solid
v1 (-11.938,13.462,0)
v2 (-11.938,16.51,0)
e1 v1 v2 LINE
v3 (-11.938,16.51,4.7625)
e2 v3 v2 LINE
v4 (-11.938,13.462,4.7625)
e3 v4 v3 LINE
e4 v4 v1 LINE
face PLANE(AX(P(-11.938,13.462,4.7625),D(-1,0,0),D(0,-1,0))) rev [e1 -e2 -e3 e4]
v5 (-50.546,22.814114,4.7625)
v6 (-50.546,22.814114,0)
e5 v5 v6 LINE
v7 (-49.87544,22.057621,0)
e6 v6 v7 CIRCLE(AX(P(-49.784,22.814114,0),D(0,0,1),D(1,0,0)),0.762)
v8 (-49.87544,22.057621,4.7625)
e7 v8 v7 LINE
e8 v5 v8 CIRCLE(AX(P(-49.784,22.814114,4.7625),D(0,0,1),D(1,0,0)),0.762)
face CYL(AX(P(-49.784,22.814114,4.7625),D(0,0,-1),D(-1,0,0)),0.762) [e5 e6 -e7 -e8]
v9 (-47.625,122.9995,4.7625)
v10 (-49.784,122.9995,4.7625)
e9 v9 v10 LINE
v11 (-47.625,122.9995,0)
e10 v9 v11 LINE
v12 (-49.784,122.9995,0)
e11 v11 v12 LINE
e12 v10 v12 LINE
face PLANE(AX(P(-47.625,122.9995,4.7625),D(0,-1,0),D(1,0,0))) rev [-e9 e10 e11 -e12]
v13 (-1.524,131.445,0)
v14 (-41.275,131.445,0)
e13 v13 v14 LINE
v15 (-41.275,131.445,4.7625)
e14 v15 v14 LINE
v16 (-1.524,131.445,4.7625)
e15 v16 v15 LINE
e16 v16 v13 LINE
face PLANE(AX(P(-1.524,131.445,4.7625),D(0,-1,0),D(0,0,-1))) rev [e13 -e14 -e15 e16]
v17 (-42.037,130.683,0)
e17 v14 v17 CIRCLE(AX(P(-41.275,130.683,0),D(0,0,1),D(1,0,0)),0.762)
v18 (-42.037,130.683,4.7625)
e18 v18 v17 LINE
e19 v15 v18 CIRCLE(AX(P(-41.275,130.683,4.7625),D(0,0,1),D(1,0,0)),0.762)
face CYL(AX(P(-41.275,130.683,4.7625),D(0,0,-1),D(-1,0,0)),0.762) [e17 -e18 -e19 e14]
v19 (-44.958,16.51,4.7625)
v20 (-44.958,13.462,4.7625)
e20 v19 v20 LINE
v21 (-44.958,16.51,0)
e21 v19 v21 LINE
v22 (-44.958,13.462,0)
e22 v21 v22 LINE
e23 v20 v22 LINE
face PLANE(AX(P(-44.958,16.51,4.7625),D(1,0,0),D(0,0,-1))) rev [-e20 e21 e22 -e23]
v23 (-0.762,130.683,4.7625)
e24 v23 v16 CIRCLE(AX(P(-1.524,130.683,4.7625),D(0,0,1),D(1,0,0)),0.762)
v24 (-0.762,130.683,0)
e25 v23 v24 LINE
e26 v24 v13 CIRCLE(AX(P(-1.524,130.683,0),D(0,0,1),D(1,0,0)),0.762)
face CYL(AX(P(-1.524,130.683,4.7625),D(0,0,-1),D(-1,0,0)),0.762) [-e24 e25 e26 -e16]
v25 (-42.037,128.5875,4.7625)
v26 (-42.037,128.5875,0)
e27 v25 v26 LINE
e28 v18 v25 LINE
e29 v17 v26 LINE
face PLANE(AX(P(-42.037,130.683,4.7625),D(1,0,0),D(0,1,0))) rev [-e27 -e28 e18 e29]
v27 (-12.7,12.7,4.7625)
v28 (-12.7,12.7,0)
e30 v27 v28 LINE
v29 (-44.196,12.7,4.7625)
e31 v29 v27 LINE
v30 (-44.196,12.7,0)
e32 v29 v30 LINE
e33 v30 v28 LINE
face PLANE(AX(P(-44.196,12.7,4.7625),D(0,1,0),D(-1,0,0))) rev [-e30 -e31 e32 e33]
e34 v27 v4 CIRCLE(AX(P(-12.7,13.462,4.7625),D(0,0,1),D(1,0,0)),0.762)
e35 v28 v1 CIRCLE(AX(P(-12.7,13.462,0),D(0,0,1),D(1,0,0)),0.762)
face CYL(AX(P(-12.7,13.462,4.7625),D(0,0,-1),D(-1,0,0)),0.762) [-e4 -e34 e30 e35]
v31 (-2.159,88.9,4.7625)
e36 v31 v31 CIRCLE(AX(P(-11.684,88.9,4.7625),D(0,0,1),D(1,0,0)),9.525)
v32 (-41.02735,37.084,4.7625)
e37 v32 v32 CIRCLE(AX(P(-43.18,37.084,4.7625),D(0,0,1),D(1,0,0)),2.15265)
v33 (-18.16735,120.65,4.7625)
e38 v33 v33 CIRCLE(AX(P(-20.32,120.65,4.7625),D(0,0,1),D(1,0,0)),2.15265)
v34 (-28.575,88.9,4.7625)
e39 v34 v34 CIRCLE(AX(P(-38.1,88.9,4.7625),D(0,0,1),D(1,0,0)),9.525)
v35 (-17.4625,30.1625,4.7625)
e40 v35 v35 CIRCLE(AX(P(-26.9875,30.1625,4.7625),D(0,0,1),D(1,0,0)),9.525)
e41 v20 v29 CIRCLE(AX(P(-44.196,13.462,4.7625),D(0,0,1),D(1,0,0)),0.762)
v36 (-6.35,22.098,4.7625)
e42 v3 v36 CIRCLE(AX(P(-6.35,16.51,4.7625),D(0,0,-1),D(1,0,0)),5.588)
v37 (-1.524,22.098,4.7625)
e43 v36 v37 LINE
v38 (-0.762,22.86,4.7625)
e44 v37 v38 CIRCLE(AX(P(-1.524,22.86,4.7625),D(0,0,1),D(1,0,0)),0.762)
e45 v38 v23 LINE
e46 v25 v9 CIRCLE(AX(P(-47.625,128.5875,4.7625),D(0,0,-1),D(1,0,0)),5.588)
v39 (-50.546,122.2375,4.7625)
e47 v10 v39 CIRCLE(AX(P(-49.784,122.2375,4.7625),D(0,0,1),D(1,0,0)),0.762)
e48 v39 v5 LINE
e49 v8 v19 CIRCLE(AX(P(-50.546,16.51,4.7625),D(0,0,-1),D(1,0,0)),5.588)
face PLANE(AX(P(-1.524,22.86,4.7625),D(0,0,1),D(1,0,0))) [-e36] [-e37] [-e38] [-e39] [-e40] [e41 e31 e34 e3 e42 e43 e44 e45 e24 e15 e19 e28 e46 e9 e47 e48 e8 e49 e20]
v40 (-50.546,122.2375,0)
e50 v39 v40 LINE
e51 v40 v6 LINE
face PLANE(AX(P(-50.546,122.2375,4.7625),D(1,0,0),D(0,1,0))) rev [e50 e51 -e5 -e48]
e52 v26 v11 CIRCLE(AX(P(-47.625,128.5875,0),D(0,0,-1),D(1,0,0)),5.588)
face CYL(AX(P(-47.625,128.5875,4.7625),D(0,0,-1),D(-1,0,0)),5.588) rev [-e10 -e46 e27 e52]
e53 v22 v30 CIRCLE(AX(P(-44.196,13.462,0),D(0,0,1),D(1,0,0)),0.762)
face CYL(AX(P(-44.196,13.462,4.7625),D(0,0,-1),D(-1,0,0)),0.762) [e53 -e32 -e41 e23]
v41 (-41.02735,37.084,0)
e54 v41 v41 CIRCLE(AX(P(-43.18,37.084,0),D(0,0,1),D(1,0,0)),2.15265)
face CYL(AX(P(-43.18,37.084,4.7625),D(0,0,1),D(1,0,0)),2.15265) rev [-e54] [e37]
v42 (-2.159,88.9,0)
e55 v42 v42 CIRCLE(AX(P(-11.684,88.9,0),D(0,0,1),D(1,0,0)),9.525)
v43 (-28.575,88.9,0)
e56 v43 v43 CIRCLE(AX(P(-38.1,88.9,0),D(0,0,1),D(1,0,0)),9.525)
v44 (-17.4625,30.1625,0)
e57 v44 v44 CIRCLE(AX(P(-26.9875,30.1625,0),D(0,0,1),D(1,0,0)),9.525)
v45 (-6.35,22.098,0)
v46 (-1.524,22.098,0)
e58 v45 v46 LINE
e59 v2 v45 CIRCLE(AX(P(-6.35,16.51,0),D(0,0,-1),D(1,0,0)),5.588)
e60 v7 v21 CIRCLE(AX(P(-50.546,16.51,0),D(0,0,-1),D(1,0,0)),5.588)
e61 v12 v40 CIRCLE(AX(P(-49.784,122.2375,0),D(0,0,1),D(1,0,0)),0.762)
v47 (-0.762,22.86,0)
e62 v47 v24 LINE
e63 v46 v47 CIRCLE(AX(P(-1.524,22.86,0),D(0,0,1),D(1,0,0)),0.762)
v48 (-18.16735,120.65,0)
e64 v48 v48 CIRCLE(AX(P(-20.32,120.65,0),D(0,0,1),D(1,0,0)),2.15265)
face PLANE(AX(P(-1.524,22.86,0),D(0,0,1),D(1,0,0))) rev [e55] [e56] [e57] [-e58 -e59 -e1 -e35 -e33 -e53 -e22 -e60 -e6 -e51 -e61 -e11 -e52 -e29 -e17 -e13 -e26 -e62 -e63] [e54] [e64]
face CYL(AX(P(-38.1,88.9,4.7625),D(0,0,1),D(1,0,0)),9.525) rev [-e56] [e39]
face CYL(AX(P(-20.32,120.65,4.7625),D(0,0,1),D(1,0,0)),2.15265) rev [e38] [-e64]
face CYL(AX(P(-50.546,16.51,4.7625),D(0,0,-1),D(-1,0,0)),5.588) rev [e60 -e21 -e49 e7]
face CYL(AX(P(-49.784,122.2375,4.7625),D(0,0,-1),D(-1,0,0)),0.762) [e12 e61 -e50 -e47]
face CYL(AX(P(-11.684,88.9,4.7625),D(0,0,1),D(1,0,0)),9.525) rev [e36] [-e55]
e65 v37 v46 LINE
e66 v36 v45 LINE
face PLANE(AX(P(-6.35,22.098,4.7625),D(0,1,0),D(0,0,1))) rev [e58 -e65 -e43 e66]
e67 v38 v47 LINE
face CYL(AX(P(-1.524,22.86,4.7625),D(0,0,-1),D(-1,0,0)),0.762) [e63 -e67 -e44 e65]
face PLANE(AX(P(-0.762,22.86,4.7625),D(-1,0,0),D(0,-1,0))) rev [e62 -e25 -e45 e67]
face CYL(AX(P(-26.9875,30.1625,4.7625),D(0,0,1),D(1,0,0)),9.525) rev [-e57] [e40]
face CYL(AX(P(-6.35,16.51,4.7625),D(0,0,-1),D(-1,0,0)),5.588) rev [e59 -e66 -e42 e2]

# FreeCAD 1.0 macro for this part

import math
import FreeCAD as App
import Part
import Sketcher
Q = App.Units.Quantity

doc = App.newDocument("Part")
body = doc.addObject("PartDesign::Body", "Body")

sketch1 = body.newObject("Sketcher::SketchObject", "Sketch")
sketch1.AttachmentSupport = (doc.getObject("XY_Plane"), [""])
sketch1.MapMode = "FlatFace"
sketch1.addGeometry([
    Part.LineSegment(App.Vector(-0.8, 22.9, 0), App.Vector(-0.8, 130.7, 0)),
    Part.ArcOfCircle(Part.Circle(App.Vector(-1.5, 130.7, 0), App.Vector(0, 0, 1), 0.8), math.radians(0), math.radians(90)),
    Part.LineSegment(App.Vector(-1.5, 131.4, 0), App.Vector(-41.3, 131.4, 0)),
    Part.ArcOfCircle(Part.Circle(App.Vector(-41.3, 130.7, 0), App.Vector(0, 0, 1), 0.8), math.radians(90), math.radians(180)),
    Part.LineSegment(App.Vector(-42, 130.7, 0), App.Vector(-42, 128.6, 0)),
    Part.ArcOfCircle(Part.Circle(App.Vector(-47.6, 128.6, 0), App.Vector(0, 0, 1), 5.6), math.radians(-90), math.radians(0)),
    Part.LineSegment(App.Vector(-47.6, 123, 0), App.Vector(-49.8, 123, 0)),
    Part.ArcOfCircle(Part.Circle(App.Vector(-49.8, 122.2, 0), App.Vector(0, 0, 1), 0.8), math.radians(90), math.radians(180)),
    Part.LineSegment(App.Vector(-50.5, 122.2, 0), App.Vector(-50.5, 22.8, 0)),
    Part.ArcOfCircle(Part.Circle(App.Vector(-49.8, 22.8, 0), App.Vector(0, 0, 1), 0.8), math.radians(180), math.radians(263)),
    Part.ArcOfCircle(Part.Circle(App.Vector(-50.5, 16.5, 0), App.Vector(0, 0, 1), 5.6), math.radians(0), math.radians(83)),
    Part.LineSegment(App.Vector(-45, 16.5, 0), App.Vector(-45, 13.5, 0)),
    Part.ArcOfCircle(Part.Circle(App.Vector(-44.2, 13.5, 0), App.Vector(0, 0, 1), 0.8), math.radians(-180), math.radians(-90)),
    Part.LineSegment(App.Vector(-44.2, 12.7, 0), App.Vector(-12.7, 12.7, 0)),
    Part.ArcOfCircle(Part.Circle(App.Vector(-12.7, 13.5, 0), App.Vector(0, 0, 1), 0.8), math.radians(-90), math.radians(0)),
    Part.LineSegment(App.Vector(-11.9, 13.5, 0), App.Vector(-11.9, 16.5, 0)),
    Part.ArcOfCircle(Part.Circle(App.Vector(-6.3, 16.5, 0), App.Vector(0, 0, 1), 5.6), math.radians(90), math.radians(180)),
    Part.LineSegment(App.Vector(-6.3, 22.1, 0), App.Vector(-1.5, 22.1, 0)),
    Part.ArcOfCircle(Part.Circle(App.Vector(-1.5, 22.9, 0), App.Vector(0, 0, 1), 0.8), math.radians(-90), math.radians(0)),
], False)
sketch1.addConstraint([
    Sketcher.Constraint("Tangent", 0, 2, 1, 1),
    Sketcher.Constraint("Tangent", 1, 2, 2, 1),
    Sketcher.Constraint("Tangent", 2, 2, 3, 1),
    Sketcher.Constraint("Tangent", 3, 2, 4, 1),
    Sketcher.Constraint("Tangent", 4, 2, 5, 2),
    Sketcher.Constraint("Tangent", 5, 1, 6, 1),
    Sketcher.Constraint("Tangent", 6, 2, 7, 1),
    Sketcher.Constraint("Tangent", 7, 2, 8, 1),
    Sketcher.Constraint("Tangent", 8, 2, 9, 1),
    Sketcher.Constraint("Tangent", 9, 2, 10, 2),
    Sketcher.Constraint("Tangent", 10, 1, 11, 1),
    Sketcher.Constraint("Tangent", 11, 2, 12, 1),
    Sketcher.Constraint("Tangent", 12, 2, 13, 1),
    Sketcher.Constraint("Tangent", 13, 2, 14, 1),
    Sketcher.Constraint("Tangent", 14, 2, 15, 1),
    Sketcher.Constraint("Tangent", 15, 2, 16, 2),
    Sketcher.Constraint("Tangent", 16, 1, 17, 1),
    Sketcher.Constraint("Tangent", 17, 2, 18, 1),
    Sketcher.Constraint("Tangent", 18, 2, 0, 1),
    Sketcher.Constraint("Vertical", 0),
    Sketcher.Constraint("Horizontal", 2),
    Sketcher.Constraint("Vertical", 4),
    Sketcher.Constraint("Horizontal", 6),
    Sketcher.Constraint("Vertical", 8),
    Sketcher.Constraint("Vertical", 11),
    Sketcher.Constraint("Horizontal", 13),
    Sketcher.Constraint("Vertical", 15),
    Sketcher.Constraint("Horizontal", 17),
    Sketcher.Constraint("Equal", 1, 3),
    Sketcher.Constraint("Equal", 3, 7),
    Sketcher.Constraint("Equal", 7, 9),
    Sketcher.Constraint("Equal", 5, 10),
    Sketcher.Constraint("Equal", 9, 12),
    Sketcher.Constraint("Equal", 12, 14),
    Sketcher.Constraint("Equal", 10, 16),
    Sketcher.Constraint("Equal", 14, 18),
    Sketcher.Constraint("Horizontal", 10, 3, 16, 3),
    Sketcher.Constraint("Vertical", 10, 3, 7, 2),
    Sketcher.Constraint("Radius", 1, Q("0.03 in")),
    Sketcher.Constraint("Radius", 5, Q("0.22 in")),
    Sketcher.Constraint("DistanceX", 13, 1, 13, 2, Q("1.24 in")),
    Sketcher.Constraint("DistanceX", 17, 1, 17, 2, Q("0.19 in")),
    Sketcher.Constraint("DistanceY", 11, 2, 11, 1, Q("0.12 in")),
    Sketcher.Constraint("DistanceX", 14, 3, -1, 1, Q("0.5 in")),
    Sketcher.Constraint("DistanceY", -1, 1, 18, 3, Q("0.9 in")),
    Sketcher.Constraint("DistanceX", 2, 2, 2, 1, Q("1.565 in")),
    Sketcher.Constraint("DistanceY", 0, 1, 0, 2, Q("4.245 in")),
    Sketcher.Constraint("DistanceY", 4, 2, 4, 1, Q("0.0825 in")),
])
pad1 = body.newObject("PartDesign::Pad", "Pad")
pad1.Profile = sketch1
pad1.Length = Q("0.1875 in")

sketch2 = body.newObject("Sketcher::SketchObject", "Sketch001")
sketch2.AttachmentSupport = (doc.getObject("XY_Plane"), [""])
sketch2.MapMode = "FlatFace"
sketch2.AttachmentOffset = App.Placement(App.Vector(0, 0, 0.1875 * 25.4), App.Rotation())
sketch2.addGeometry([
    Part.Circle(App.Vector(-38, 89, 0), App.Vector(0, 0, 1), 10),
    Part.Circle(App.Vector(-12, 89, 0), App.Vector(0, 0, 1), 10),
    Part.Circle(App.Vector(-27, 30, 0), App.Vector(0, 0, 1), 10),
], False)
sketch2.addConstraint([
    Sketcher.Constraint("Equal", 0, 1),
    Sketcher.Constraint("Equal", 1, 2),
    Sketcher.Constraint("Horizontal", 0, 3, 1, 3),
    Sketcher.Constraint("Diameter", 0, Q("0.75 in")),
    Sketcher.Constraint("DistanceX", 0, 3, -1, 1, Q("1.5 in")),
    Sketcher.Constraint("DistanceY", -1, 1, 0, 3, Q("3.5 in")),
    Sketcher.Constraint("DistanceX", 1, 3, -1, 1, Q("0.46 in")),
    Sketcher.Constraint("DistanceX", 2, 3, -1, 1, Q("1.0625 in")),
    Sketcher.Constraint("DistanceY", -1, 1, 2, 3, Q("1.1875 in")),
])
doc.recompute()
hole = body.newObject("PartDesign::Hole", "Hole")
hole.Profile = sketch2
hole.ThreadType = "None"
hole.Diameter = Q("0.75 in")
hole.DepthType = "ThroughAll"

sketch3 = body.newObject("Sketcher::SketchObject", "Sketch002")
sketch3.AttachmentSupport = (doc.getObject("XY_Plane"), [""])
sketch3.MapMode = "FlatFace"
sketch3.AttachmentOffset = App.Placement(App.Vector(0, 0, 0.1875 * 25.4), App.Rotation())
sketch3.addGeometry([
    Part.Circle(App.Vector(-20.3, 120.7, 0), App.Vector(0, 0, 1), 2.2),
    Part.Circle(App.Vector(-43.2, 37.1, 0), App.Vector(0, 0, 1), 2.2),
], False)
sketch3.addConstraint([
    Sketcher.Constraint("Equal", 0, 1),
    Sketcher.Constraint("Diameter", 0, Q("0.1695 in")),
    Sketcher.Constraint("DistanceX", 0, 3, -1, 1, Q("0.8 in")),
    Sketcher.Constraint("DistanceX", 1, 3, -1, 1, Q("1.7 in")),
    Sketcher.Constraint("DistanceY", -1, 1, 0, 3, Q("4.75 in")),
    Sketcher.Constraint("DistanceY", -1, 1, 1, 3, Q("1.46 in")),
])
doc.recompute()
hole2 = body.newObject("PartDesign::Hole", "Hole001")
hole2.Profile = sketch3
hole2.ThreadType = "None"
hole2.Diameter = Q("0.1695 in")
hole2.DepthType = "ThroughAll"

doc.recompute()
